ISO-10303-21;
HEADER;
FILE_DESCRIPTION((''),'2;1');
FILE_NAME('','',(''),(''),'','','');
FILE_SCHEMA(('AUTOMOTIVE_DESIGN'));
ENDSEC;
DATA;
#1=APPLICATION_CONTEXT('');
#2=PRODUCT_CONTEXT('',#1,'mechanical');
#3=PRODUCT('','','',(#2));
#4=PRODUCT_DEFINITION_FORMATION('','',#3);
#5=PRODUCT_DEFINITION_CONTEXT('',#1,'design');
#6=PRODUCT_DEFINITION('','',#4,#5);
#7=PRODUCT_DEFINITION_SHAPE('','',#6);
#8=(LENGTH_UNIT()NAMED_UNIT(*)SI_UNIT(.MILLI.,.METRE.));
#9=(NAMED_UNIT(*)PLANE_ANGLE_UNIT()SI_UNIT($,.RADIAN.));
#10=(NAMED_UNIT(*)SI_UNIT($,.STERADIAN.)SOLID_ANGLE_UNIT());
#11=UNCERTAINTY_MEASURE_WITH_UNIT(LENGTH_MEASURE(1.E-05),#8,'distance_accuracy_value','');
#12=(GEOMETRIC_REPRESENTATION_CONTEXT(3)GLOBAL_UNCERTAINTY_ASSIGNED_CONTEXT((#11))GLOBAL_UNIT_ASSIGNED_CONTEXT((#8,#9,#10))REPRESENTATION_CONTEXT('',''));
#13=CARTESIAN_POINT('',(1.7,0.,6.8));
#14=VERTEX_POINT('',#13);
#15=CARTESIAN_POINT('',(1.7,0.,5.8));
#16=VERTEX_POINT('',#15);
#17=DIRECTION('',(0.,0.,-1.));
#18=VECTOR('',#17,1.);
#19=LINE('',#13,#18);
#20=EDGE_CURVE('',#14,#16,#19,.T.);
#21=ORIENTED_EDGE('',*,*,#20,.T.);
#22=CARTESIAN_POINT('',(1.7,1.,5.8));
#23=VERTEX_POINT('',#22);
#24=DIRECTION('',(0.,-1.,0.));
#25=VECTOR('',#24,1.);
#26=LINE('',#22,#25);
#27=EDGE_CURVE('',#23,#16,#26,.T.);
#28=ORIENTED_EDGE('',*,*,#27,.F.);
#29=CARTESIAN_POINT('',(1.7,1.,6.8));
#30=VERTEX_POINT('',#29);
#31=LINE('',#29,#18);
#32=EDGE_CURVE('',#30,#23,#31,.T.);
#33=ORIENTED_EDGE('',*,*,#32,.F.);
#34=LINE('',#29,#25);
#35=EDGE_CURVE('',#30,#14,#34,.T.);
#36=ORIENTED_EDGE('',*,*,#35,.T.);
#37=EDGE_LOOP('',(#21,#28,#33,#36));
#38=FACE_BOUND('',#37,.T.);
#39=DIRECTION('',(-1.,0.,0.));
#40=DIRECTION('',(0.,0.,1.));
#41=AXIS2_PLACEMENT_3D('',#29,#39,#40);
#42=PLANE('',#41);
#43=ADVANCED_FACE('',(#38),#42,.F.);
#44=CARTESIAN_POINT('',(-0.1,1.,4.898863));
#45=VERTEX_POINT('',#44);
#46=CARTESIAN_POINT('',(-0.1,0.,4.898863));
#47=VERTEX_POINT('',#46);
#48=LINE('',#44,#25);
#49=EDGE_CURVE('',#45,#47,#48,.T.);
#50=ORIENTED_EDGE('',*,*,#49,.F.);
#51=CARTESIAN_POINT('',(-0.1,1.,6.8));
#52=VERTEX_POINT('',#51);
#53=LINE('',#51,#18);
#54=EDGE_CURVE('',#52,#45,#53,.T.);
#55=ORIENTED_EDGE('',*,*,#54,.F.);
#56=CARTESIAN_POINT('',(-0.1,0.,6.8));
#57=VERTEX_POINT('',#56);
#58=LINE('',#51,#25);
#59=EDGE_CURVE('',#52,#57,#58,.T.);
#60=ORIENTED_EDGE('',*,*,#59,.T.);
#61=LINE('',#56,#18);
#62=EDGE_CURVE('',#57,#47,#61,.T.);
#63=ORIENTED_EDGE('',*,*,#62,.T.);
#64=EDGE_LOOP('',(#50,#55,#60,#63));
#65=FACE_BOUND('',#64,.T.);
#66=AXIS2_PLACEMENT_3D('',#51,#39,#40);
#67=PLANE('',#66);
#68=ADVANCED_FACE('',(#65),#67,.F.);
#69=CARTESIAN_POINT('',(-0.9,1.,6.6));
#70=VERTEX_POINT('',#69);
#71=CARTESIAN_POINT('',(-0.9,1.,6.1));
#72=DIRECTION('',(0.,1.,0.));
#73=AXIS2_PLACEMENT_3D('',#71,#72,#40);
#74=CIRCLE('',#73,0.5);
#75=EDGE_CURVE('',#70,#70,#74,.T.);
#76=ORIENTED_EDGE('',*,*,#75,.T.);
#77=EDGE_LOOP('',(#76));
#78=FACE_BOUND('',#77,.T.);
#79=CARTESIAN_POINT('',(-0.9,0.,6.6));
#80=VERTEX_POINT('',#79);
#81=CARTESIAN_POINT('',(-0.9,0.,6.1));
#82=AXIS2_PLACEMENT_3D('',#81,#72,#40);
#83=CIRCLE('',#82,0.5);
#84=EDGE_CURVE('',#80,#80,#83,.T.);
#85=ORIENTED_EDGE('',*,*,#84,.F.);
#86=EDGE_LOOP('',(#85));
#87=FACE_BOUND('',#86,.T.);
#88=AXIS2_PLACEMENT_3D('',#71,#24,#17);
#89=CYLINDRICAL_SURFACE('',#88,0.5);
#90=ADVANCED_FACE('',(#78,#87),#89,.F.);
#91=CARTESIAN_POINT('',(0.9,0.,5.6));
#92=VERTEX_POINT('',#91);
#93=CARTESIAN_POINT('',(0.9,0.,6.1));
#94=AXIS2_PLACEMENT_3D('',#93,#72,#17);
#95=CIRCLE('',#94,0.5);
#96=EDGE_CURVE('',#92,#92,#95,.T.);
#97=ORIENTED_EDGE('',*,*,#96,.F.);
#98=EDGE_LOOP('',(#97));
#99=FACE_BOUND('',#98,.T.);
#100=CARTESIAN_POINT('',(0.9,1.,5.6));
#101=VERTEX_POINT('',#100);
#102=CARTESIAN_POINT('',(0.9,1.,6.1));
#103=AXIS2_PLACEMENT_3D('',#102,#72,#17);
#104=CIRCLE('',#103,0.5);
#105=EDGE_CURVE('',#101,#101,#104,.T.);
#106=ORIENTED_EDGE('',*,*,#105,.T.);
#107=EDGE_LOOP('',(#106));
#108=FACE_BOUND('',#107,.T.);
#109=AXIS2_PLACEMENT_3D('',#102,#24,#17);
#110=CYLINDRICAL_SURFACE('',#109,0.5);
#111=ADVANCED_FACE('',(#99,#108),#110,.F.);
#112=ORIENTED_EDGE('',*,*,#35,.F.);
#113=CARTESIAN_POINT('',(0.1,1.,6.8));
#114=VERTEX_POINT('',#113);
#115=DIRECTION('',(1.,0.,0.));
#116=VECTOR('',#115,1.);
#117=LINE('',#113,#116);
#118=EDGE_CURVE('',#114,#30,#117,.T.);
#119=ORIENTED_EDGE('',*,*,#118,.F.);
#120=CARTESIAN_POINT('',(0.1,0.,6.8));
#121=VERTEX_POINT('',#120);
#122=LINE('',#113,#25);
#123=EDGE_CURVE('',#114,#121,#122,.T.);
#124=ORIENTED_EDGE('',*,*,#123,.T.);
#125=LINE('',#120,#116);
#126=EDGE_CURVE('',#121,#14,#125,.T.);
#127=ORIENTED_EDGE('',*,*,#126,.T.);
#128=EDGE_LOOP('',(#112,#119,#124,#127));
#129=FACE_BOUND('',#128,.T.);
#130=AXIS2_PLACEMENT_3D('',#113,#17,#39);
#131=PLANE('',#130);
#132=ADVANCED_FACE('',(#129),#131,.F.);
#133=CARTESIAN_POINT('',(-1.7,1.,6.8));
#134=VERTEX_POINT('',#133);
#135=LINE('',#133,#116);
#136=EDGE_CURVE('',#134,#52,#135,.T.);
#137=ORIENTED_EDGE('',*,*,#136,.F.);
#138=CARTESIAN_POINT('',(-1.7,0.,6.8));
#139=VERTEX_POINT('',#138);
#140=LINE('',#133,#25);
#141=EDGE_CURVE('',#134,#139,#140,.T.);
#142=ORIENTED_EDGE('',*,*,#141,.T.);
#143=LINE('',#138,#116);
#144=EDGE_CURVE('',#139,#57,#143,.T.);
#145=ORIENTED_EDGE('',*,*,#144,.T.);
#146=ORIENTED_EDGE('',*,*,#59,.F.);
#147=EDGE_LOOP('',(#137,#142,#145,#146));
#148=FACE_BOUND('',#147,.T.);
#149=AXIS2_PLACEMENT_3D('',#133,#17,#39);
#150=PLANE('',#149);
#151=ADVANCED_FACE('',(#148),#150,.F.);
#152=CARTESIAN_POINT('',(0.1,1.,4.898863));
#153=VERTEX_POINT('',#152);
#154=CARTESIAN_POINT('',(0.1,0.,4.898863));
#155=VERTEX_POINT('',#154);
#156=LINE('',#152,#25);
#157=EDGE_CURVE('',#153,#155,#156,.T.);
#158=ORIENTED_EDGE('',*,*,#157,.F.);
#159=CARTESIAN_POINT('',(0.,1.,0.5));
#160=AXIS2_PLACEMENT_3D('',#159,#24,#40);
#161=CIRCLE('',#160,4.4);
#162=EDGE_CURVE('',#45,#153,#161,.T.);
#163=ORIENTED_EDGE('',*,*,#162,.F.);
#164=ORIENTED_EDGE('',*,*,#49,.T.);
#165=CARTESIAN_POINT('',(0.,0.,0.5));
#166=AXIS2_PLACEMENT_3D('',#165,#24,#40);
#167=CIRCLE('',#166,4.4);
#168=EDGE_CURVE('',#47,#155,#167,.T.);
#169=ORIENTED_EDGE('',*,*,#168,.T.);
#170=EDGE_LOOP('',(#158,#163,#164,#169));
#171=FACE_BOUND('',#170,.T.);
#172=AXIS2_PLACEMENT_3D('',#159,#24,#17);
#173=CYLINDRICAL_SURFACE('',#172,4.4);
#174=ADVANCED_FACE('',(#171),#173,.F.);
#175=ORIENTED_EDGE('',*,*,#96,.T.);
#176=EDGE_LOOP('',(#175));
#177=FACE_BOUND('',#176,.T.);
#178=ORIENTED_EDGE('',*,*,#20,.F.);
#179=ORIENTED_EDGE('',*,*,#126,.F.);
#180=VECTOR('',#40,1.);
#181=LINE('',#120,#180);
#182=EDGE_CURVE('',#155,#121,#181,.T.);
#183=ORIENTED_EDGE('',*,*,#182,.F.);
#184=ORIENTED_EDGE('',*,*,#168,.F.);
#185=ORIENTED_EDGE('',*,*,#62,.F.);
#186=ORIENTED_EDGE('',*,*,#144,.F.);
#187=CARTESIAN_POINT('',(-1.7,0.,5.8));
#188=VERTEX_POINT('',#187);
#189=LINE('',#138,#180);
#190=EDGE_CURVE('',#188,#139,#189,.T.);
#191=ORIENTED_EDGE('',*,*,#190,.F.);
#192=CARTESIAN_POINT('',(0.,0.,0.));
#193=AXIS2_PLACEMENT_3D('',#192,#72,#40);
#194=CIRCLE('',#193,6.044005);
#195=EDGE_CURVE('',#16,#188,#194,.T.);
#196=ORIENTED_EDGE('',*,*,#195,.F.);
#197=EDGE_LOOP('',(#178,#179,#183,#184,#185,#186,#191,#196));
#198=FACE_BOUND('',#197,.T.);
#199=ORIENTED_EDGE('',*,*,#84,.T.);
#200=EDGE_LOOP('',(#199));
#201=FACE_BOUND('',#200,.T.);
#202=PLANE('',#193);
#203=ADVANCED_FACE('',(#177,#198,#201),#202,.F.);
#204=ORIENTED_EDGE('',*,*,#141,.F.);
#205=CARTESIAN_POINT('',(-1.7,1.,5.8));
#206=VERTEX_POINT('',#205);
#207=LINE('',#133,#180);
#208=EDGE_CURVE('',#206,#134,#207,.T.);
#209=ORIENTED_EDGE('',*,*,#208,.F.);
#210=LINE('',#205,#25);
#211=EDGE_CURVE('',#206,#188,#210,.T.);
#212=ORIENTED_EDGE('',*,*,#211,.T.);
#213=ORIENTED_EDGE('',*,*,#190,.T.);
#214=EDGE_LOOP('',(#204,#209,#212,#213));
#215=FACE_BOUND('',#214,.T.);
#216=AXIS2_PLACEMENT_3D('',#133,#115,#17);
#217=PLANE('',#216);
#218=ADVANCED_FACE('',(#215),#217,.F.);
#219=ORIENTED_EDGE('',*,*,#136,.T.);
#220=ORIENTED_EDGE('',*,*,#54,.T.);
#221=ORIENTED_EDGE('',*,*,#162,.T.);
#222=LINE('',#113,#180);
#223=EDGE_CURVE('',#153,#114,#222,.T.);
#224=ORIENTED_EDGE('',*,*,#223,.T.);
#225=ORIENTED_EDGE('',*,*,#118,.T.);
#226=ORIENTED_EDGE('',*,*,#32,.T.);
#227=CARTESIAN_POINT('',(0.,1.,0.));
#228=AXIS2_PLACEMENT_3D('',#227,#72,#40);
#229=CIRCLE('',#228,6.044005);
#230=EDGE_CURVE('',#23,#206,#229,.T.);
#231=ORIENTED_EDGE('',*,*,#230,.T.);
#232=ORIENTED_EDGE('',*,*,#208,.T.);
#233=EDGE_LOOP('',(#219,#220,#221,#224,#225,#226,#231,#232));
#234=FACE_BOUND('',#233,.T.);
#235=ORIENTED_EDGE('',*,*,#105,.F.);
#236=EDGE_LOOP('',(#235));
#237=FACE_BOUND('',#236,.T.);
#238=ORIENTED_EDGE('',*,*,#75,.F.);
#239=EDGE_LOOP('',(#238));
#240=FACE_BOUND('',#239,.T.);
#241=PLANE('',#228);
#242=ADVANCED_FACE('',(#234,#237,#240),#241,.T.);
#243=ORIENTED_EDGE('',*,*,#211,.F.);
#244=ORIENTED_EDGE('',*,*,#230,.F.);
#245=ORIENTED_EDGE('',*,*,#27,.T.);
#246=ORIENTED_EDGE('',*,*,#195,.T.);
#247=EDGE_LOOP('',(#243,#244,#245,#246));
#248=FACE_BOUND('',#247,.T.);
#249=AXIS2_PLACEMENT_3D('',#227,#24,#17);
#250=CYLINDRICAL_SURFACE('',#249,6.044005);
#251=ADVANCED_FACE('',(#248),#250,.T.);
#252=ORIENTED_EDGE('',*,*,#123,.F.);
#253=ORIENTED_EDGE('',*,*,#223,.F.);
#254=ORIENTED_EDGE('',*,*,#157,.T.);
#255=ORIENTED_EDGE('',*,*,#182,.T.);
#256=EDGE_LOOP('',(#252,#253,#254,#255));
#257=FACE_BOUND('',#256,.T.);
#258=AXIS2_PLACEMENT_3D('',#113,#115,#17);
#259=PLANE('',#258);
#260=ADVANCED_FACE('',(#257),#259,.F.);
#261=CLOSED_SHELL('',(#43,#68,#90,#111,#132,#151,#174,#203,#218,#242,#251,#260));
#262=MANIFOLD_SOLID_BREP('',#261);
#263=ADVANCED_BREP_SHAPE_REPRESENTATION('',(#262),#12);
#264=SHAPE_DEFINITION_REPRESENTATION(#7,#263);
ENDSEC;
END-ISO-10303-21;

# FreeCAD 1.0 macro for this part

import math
import FreeCAD as App
import Part
import Sketcher

doc = App.newDocument("Part")
body = doc.addObject("PartDesign::Body", "Body")

# Sketch on XZ plane
sketch1 = body.newObject("Sketcher::SketchObject", "Sketch")
sketch1.AttachmentSupport = (doc.getObject("XZ_Plane"), [""])
sketch1.MapMode = "FlatFace"
sketch1.addGeometry([
    Part.LineSegment(App.Vector(-1.7, 6.8, 0), App.Vector(-0.1, 6.8, 0)),  # 0
    Part.LineSegment(App.Vector(-0.1, 6.8, 0), App.Vector(-0.1, 4.898863, 0)),  # 1
    Part.ArcOfCircle(Part.Circle(App.Vector(0, 0.5, 0), App.Vector(0, 0, 1), 4.4), math.radians(91.302289), math.radians(448.697711)),  # 2
    Part.LineSegment(App.Vector(0.1, 4.898863, 0), App.Vector(0.1, 6.8, 0)),  # 3
    Part.LineSegment(App.Vector(0.1, 6.8, 0), App.Vector(1.7, 6.8, 0)),  # 4
    Part.LineSegment(App.Vector(1.7, 6.8, 0), App.Vector(1.7, 5.8, 0)),  # 5
    Part.ArcOfCircle(Part.Circle(App.Vector(0, 0, 0), App.Vector(0, 0, 1), 6.044005), math.radians(106.336043), math.radians(433.663957)),  # 6
    Part.LineSegment(App.Vector(-1.7, 5.8, 0), App.Vector(-1.7, 6.8, 0)),  # 7
    Part.Circle(App.Vector(-0.9, 6.1, 0), App.Vector(0, 0, 1), 0.5),  # 8
    Part.Circle(App.Vector(0.9, 6.1, 0), App.Vector(0, 0, 1), 0.5),  # 9
], False)
sketch1.addConstraint([
    Sketcher.Constraint("Coincident", 0, 2, 1, 1),
    Sketcher.Constraint("Coincident", 1, 2, 2, 1),
    Sketcher.Constraint("Coincident", 2, 2, 3, 1),
    Sketcher.Constraint("Coincident", 3, 2, 4, 1),
    Sketcher.Constraint("Coincident", 4, 2, 5, 1),
    Sketcher.Constraint("Coincident", 5, 2, 6, 2),
    Sketcher.Constraint("Coincident", 6, 1, 7, 1),
    Sketcher.Constraint("Coincident", 7, 2, 0, 1),
    Sketcher.Constraint("Horizontal", 0),
    Sketcher.Constraint("Vertical", 1),
    Sketcher.Constraint("Vertical", 3),
    Sketcher.Constraint("Horizontal", 4),
    Sketcher.Constraint("Vertical", 5),
    Sketcher.Constraint("Vertical", 7),
    Sketcher.Constraint("Coincident", 6, 3, -1, 1),
    Sketcher.Constraint("Equal", 8, 9),
    Sketcher.Constraint("Symmetric", 8, 3, 9, 3, -2),
    Sketcher.Constraint("Symmetric", 1, 2, 2, 2, -2),
    Sketcher.Constraint("Symmetric", 4, 2, 7, 2, -2),
    Sketcher.Constraint("Diameter", 8, 1.0),
    Sketcher.Constraint("Radius", 2, 4.4),
    Sketcher.Constraint("DistanceY", 5, 2, 5, 1, 1.0),
    Sketcher.Constraint("DistanceX", 0, 1, 0, 2, 1.6),
    Sketcher.Constraint("DistanceX", 0, 2, 9, 3, 1.0),
    Sketcher.Constraint("DistanceY", -1, 1, 2, 3, 0.5),
    Sketcher.Constraint("DistanceX", 8, 3, -1, 1, 0.9),
    Sketcher.Constraint("DistanceY", -1, 1, 8, 3, 6.1),
    Sketcher.Constraint("DistanceY", -1, 1, 0, 2, 6.8),
])
pad1 = body.newObject("PartDesign::Pad", "Pad")
pad1.Profile = sketch1
pad1.Length = 1
pad1.Reversed = True

doc.recompute()
